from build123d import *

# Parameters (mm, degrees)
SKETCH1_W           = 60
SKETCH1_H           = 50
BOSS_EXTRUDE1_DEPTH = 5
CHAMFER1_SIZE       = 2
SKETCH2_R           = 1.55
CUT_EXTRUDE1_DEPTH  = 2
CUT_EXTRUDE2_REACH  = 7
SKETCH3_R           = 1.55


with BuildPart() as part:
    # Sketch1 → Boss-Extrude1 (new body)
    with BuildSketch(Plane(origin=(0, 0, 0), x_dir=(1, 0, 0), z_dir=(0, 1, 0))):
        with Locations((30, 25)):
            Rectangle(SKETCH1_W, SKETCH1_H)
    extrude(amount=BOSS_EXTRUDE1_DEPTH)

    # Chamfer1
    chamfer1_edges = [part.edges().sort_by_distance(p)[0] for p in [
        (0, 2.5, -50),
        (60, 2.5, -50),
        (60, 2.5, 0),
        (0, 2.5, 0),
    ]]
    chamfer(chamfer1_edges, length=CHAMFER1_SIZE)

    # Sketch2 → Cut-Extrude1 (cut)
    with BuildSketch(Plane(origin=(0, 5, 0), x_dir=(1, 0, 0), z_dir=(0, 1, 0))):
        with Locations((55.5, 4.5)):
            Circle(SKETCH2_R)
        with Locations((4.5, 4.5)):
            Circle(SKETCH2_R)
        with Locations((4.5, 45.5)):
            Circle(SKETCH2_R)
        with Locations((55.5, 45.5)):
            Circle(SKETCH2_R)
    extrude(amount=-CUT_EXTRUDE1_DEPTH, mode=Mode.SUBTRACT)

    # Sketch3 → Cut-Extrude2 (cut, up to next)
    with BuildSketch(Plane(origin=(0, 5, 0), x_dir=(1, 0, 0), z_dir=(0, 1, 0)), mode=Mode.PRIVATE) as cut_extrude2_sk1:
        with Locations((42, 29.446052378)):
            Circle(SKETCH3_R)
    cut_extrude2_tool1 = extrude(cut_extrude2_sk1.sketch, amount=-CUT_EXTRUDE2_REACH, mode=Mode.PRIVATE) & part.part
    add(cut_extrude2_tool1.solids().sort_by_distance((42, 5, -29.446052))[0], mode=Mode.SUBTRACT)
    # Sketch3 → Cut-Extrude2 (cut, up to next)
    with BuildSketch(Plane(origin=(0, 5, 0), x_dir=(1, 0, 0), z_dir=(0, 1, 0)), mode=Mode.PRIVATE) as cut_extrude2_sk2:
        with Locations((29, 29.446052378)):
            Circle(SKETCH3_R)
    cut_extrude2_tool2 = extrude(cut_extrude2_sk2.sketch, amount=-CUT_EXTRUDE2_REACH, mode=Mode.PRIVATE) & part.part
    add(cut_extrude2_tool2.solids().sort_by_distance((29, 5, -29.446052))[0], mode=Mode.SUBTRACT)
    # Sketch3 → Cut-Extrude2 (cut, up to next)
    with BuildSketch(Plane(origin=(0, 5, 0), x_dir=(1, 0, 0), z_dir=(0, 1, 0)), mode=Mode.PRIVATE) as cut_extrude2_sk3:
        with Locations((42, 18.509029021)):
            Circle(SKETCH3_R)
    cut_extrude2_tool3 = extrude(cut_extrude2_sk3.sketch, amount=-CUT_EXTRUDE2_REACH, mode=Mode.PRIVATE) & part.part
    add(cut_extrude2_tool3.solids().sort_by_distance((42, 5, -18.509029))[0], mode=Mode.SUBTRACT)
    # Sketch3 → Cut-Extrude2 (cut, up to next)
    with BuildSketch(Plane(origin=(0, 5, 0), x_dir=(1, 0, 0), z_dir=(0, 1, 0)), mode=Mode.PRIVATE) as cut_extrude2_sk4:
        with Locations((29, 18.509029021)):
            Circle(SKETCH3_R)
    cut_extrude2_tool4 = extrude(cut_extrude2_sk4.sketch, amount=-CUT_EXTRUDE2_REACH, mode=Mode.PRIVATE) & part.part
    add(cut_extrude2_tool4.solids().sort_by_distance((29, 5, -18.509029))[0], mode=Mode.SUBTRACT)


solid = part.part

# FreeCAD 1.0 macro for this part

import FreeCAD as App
import Part
import Sketcher

V = App.Vector
Q = App.Units.Quantity


def edges_at(feature, points):
    """Names of the edges that pass closest to the given points."""
    edges = feature.Shape.Edges
    near = lambda p: min(range(len(edges)), key=lambda i: edges[i].distToShape(Part.Vertex(*p))[0])
    return sorted({f"Edge{near(p) + 1}" for p in points})


def add_polygon(sketch, points):
    """Adds a closed chain of lines whose ends are joined by coincident constraints."""
    first, n = sketch.GeometryCount, len(points)
    for a, b in zip(points, points[1:] + points[:1]):
        sketch.addGeometry(Part.LineSegment(App.Vector(*a, 0), App.Vector(*b, 0)), False)
    for i in range(n):
        sketch.addConstraint(Sketcher.Constraint("Coincident", first + i, 2, first + (i + 1) % n, 1))

doc = App.newDocument("Part")
params = doc.addObject("Spreadsheet::Sheet", "Params")
for row, (alias, value) in enumerate([
    ("sketch1_width", "60 mm"),
    ("sketch1_height", "50 mm"),
    ("pad1_length", "5 mm"),
    ("chamfer_size", "2 mm"),
    ("sketch2_diameter", "3.1 mm"),
    ("pocket1_length", "2 mm"),
    ("sketch3_diameter", "3.1 mm"),
    ("sketch4_diameter", "3.1 mm"),
    ("sketch5_diameter", "3.1 mm"),
    ("sketch6_diameter", "3.1 mm"),
], start=1):
    params.set(f"A{row}", alias)
    params.set(f"B{row}", "=" + value)
    params.setAlias(f"B{row}", alias)

body = doc.addObject("PartDesign::Body", "Body")

# Sketch on XZ plane
sketch1 = body.newObject("Sketcher::SketchObject", "Sketch")
sketch1.AttachmentSupport = (doc.getObject("XZ_Plane"), [""])
sketch1.MapMode = "FlatFace"
add_polygon(sketch1, [(0, -50), (0, 0), (60, 0), (60, -50)])  # lines 0-3
sketch1.addConstraint([
    Sketcher.Constraint("Vertical", 0),
    Sketcher.Constraint("Horizontal", 1),
    Sketcher.Constraint("Vertical", 2),
    Sketcher.Constraint("Horizontal", 3),
    Sketcher.Constraint("Coincident", 0, 2, -1, 1),
    Sketcher.Constraint("DistanceX", 1, 1, 1, 2, Q("60 mm")),
    Sketcher.Constraint("DistanceY", 0, 1, 0, 2, Q("50 mm")),
])
sketch1.setExpression("Constraints[9]", "Params.sketch1_width")
sketch1.setExpression("Constraints[10]", "Params.sketch1_height")
pad1 = body.newObject("PartDesign::Pad", "Pad")
pad1.Profile = sketch1
pad1.setExpression("Length", "Params.pad1_length")
pad1.Reversed = True
doc.recompute()

chamfer = body.newObject("PartDesign::Chamfer", "Chamfer")
chamfer.Base = (pad1, edges_at(pad1, [
    (0, 2.5, -50),
    (60, 2.5, -50),
    (60, 2.5, 0),
    (0, 2.5, 0),
]))
chamfer.setExpression("Size", "Params.chamfer_size")

# Sketch on XZ plane
sketch2 = body.newObject("Sketcher::SketchObject", "Sketch001")
sketch2.AttachmentSupport = (doc.getObject("XZ_Plane"), [""])
sketch2.MapMode = "FlatFace"
sketch2.AttachmentOffset = App.Placement(V(0, 0, -5), App.Rotation())
sketch2.addGeometry([
    Part.Circle(V(55.5, -4.5, 0), V(0, 0, 1), 1.55),
    Part.Circle(V(4.5, -4.5, 0), V(0, 0, 1), 1.55),
    Part.Circle(V(4.5, -45.5, 0), V(0, 0, 1), 1.55),
    Part.Circle(V(55.5, -45.5, 0), V(0, 0, 1), 1.55),
], False)
sketch2.addConstraint([
    Sketcher.Constraint("Equal", 0, 1),
    Sketcher.Constraint("Equal", 1, 2),
    Sketcher.Constraint("Equal", 2, 3),
    Sketcher.Constraint("Horizontal", 0, 3, 1, 3),
    Sketcher.Constraint("Horizontal", 2, 3, 3, 3),
    Sketcher.Constraint("Vertical", 1, 3, 2, 3),
    Sketcher.Constraint("Vertical", 0, 3, 3, 3),
    Sketcher.Constraint("Diameter", 0, Q("3.1 mm")),
    Sketcher.Constraint("DistanceX", 1, 3, 0, 3, Q("51 mm")),
    Sketcher.Constraint("DistanceY", 2, 3, 1, 3, Q("41 mm")),
    Sketcher.Constraint("DistanceX", -1, 1, 0, 3, Q("55.5 mm")),
    Sketcher.Constraint("DistanceY", 0, 3, -1, 1, Q("4.5 mm")),
])
sketch2.setExpression("Constraints[7]", "Params.sketch2_diameter")
pocket1 = body.newObject("PartDesign::Pocket", "Pocket")
pocket1.Profile = sketch2
pocket1.setExpression("Length", "Params.pocket1_length")
pocket1.Reversed = True

# Sketch on XZ plane
sketch3 = body.newObject("Sketcher::SketchObject", "Sketch002")
sketch3.AttachmentSupport = (doc.getObject("XZ_Plane"), [""])
sketch3.MapMode = "FlatFace"
sketch3.AttachmentOffset = App.Placement(V(0, 0, -5), App.Rotation())
sketch3.addGeometry(Part.Circle(V(42, -29.446052, 0), V(0, 0, 1), 1.55), False)
sketch3.addConstraint([
    Sketcher.Constraint("Diameter", 0, Q("3.1 mm")),
    Sketcher.Constraint("DistanceX", -1, 1, 0, 3, Q("42 mm")),
    Sketcher.Constraint("DistanceY", 0, 3, -1, 1, Q("29.446052 mm")),
])
sketch3.setExpression("Constraints[0]", "Params.sketch3_diameter")
pocket2 = body.newObject("PartDesign::Pocket", "Pocket001")
pocket2.Profile = sketch3
pocket2.Type = "UpToFirst"
pocket2.Reversed = True

# Sketch on XZ plane
sketch4 = body.newObject("Sketcher::SketchObject", "Sketch003")
sketch4.AttachmentSupport = (doc.getObject("XZ_Plane"), [""])
sketch4.MapMode = "FlatFace"
sketch4.AttachmentOffset = App.Placement(V(0, 0, -5), App.Rotation())
sketch4.addGeometry(Part.Circle(V(29, -29.446052, 0), V(0, 0, 1), 1.55), False)
sketch4.addConstraint([
    Sketcher.Constraint("Diameter", 0, Q("3.1 mm")),
    Sketcher.Constraint("DistanceX", -1, 1, 0, 3, Q("29 mm")),
    Sketcher.Constraint("DistanceY", 0, 3, -1, 1, Q("29.446052 mm")),
])
sketch4.setExpression("Constraints[0]", "Params.sketch4_diameter")
pocket3 = body.newObject("PartDesign::Pocket", "Pocket002")
pocket3.Profile = sketch4
pocket3.Type = "UpToFirst"
pocket3.Reversed = True

# Sketch on XZ plane
sketch5 = body.newObject("Sketcher::SketchObject", "Sketch004")
sketch5.AttachmentSupport = (doc.getObject("XZ_Plane"), [""])
sketch5.MapMode = "FlatFace"
sketch5.AttachmentOffset = App.Placement(V(0, 0, -5), App.Rotation())
sketch5.addGeometry(Part.Circle(V(42, -18.509029, 0), V(0, 0, 1), 1.55), False)
sketch5.addConstraint([
    Sketcher.Constraint("Diameter", 0, Q("3.1 mm")),
    Sketcher.Constraint("DistanceX", -1, 1, 0, 3, Q("42 mm")),
    Sketcher.Constraint("DistanceY", 0, 3, -1, 1, Q("18.509029 mm")),
])
sketch5.setExpression("Constraints[0]", "Params.sketch5_diameter")
pocket4 = body.newObject("PartDesign::Pocket", "Pocket003")
pocket4.Profile = sketch5
pocket4.Type = "UpToFirst"
pocket4.Reversed = True

# Sketch on XZ plane
sketch6 = body.newObject("Sketcher::SketchObject", "Sketch005")
sketch6.AttachmentSupport = (doc.getObject("XZ_Plane"), [""])
sketch6.MapMode = "FlatFace"
sketch6.AttachmentOffset = App.Placement(V(0, 0, -5), App.Rotation())
sketch6.addGeometry(Part.Circle(V(29, -18.509029, 0), V(0, 0, 1), 1.55), False)
sketch6.addConstraint([
    Sketcher.Constraint("Diameter", 0, Q("3.1 mm")),
    Sketcher.Constraint("DistanceX", -1, 1, 0, 3, Q("29 mm")),
    Sketcher.Constraint("DistanceY", 0, 3, -1, 1, Q("18.509029 mm")),
])
sketch6.setExpression("Constraints[0]", "Params.sketch6_diameter")
pocket5 = body.newObject("PartDesign::Pocket", "Pocket004")
pocket5.Profile = sketch6
pocket5.Type = "UpToFirst"
pocket5.Reversed = True

doc.recompute()
